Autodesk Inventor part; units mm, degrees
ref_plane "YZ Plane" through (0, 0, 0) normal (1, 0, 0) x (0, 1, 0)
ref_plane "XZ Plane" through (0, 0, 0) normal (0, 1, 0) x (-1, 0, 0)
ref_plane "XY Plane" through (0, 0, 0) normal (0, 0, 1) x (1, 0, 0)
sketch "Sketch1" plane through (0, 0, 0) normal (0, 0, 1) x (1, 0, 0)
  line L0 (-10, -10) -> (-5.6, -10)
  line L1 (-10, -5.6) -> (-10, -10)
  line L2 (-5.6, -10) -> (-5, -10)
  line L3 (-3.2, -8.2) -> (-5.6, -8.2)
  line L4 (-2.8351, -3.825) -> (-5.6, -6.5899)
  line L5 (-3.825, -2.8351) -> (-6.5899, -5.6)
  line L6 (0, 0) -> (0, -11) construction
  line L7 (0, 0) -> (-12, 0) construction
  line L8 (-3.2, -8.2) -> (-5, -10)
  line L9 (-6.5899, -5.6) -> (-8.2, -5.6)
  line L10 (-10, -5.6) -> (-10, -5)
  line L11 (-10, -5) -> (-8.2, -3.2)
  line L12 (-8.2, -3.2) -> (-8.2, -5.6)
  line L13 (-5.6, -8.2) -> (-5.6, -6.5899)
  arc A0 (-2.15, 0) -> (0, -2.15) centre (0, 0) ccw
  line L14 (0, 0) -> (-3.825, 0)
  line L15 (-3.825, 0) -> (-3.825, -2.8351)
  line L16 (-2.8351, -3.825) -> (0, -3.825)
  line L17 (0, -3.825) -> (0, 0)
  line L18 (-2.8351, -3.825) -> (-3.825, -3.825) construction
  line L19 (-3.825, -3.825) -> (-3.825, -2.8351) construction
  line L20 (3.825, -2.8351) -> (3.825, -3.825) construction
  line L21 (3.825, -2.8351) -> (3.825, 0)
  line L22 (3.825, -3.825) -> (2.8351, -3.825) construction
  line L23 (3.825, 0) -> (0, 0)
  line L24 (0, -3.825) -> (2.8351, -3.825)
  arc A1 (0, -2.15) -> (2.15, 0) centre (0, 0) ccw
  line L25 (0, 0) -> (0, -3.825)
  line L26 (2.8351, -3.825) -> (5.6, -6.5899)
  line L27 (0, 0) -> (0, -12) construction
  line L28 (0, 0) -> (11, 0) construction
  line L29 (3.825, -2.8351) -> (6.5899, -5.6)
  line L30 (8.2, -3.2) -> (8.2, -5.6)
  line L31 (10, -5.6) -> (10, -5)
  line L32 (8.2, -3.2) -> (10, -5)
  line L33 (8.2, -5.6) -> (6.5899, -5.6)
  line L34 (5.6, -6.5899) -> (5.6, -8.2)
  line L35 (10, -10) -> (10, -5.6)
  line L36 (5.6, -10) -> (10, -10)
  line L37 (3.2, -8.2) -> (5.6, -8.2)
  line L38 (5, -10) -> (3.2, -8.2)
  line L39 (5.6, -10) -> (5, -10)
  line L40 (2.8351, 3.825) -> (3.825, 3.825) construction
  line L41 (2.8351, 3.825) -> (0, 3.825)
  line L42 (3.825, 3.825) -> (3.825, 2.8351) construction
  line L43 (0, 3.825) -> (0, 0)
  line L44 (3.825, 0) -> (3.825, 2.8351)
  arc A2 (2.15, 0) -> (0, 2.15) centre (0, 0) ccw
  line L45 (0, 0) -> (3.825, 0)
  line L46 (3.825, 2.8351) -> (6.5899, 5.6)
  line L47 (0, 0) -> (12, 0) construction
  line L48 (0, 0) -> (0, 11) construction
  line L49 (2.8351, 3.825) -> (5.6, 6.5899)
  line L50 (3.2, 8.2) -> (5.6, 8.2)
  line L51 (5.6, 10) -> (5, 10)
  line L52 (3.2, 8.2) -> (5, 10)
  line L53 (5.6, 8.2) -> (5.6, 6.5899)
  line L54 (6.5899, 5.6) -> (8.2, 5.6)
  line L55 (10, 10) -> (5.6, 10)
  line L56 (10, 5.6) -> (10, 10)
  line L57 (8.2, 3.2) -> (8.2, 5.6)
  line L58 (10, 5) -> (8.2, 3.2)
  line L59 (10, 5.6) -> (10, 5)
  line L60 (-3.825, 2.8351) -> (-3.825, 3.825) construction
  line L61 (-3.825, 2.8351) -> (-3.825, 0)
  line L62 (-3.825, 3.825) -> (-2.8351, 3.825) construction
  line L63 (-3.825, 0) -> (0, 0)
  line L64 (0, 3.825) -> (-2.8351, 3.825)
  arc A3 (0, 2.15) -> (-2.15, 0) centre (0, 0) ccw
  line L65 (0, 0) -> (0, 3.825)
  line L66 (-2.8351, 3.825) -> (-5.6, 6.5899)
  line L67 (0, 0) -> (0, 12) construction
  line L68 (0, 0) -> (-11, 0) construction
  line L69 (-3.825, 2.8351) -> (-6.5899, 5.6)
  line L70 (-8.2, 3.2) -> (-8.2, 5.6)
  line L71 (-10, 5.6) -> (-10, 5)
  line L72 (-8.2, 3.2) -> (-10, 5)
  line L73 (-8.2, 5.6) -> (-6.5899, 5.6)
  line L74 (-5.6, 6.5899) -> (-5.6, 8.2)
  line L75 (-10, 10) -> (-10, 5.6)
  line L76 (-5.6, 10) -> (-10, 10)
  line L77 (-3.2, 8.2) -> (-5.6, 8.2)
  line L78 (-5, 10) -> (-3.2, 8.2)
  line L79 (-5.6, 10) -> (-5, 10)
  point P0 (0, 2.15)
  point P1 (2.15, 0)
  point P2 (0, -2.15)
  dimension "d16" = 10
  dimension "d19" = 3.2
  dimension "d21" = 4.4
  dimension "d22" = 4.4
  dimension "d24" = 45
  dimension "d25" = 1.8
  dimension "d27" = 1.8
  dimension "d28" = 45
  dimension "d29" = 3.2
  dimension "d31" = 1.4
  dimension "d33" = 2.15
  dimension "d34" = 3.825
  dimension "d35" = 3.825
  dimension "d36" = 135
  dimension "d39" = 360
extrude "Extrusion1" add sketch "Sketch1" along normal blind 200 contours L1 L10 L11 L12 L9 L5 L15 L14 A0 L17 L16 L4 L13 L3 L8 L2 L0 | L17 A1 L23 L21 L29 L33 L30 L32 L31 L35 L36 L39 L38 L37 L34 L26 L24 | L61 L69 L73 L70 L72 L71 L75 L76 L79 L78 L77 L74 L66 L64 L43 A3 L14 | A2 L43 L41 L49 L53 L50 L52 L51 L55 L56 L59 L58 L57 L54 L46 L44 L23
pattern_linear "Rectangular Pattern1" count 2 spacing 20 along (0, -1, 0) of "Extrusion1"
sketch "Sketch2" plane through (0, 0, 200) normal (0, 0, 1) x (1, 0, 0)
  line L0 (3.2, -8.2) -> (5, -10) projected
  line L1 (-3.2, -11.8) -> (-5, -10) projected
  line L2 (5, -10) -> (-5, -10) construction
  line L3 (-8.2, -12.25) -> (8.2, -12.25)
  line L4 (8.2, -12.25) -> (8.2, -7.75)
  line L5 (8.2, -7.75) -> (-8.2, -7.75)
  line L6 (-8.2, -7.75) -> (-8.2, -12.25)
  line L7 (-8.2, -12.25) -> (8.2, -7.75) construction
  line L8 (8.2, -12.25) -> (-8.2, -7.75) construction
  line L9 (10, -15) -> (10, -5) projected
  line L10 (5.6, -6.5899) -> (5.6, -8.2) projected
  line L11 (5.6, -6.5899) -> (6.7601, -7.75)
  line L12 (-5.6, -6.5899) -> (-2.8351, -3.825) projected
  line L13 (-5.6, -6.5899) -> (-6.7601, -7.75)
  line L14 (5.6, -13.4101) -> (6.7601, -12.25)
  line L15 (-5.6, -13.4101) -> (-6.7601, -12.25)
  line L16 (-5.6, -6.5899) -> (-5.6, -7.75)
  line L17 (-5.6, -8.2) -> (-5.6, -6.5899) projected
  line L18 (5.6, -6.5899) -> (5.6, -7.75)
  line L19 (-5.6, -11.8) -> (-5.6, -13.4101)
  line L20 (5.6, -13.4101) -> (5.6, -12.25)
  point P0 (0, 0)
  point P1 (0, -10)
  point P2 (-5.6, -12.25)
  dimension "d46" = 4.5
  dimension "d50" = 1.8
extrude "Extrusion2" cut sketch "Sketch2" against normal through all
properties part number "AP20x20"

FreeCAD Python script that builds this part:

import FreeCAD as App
import Part
import Sketcher
from FreeCAD import Vector

doc = App.newDocument("Part")
body = doc.addObject("PartDesign::Body", "Body")

sketch1 = body.newObject("Sketcher::SketchObject", "Sketch")
sketch1.AttachmentSupport = (doc.getObject("XY_Plane"), [""])
sketch1.MapMode = "FlatFace"
sketch1.addGeometry([
    Part.LineSegment(Vector(-10, -10, 0), Vector(-5, -10, 0)),
    Part.LineSegment(Vector(-5, -10, 0), Vector(-3.2, -8.2, 0)),
    Part.LineSegment(Vector(-3.2, -8.2, 0), Vector(-5.6, -8.2, 0)),
    Part.LineSegment(Vector(-5.6, -8.2, 0), Vector(-5.6, -6.6, 0)),
    Part.LineSegment(Vector(-5.6, -6.6, 0), Vector(-2.8, -3.8, 0)),
    Part.LineSegment(Vector(-2.8, -3.8, 0), Vector(2.8, -3.8, 0)),
    Part.LineSegment(Vector(2.8, -3.8, 0), Vector(5.6, -6.6, 0)),
    Part.LineSegment(Vector(5.6, -6.6, 0), Vector(5.6, -8.2, 0)),
    Part.LineSegment(Vector(5.6, -8.2, 0), Vector(3.2, -8.2, 0)),
    Part.LineSegment(Vector(3.2, -8.2, 0), Vector(5, -10, 0)),
    Part.LineSegment(Vector(5, -10, 0), Vector(10, -10, 0)),
    Part.LineSegment(Vector(10, -10, 0), Vector(10, -5, 0)),
    Part.LineSegment(Vector(10, -5, 0), Vector(8.2, -3.2, 0)),
    Part.LineSegment(Vector(8.2, -3.2, 0), Vector(8.2, -5.6, 0)),
    Part.LineSegment(Vector(8.2, -5.6, 0), Vector(6.6, -5.6, 0)),
    Part.LineSegment(Vector(6.6, -5.6, 0), Vector(3.8, -2.8, 0)),
    Part.LineSegment(Vector(3.8, -2.8, 0), Vector(3.8, 2.8, 0)),
    Part.LineSegment(Vector(3.8, 2.8, 0), Vector(6.6, 5.6, 0)),
    Part.LineSegment(Vector(6.6, 5.6, 0), Vector(8.2, 5.6, 0)),
    Part.LineSegment(Vector(8.2, 5.6, 0), Vector(8.2, 3.2, 0)),
    Part.LineSegment(Vector(8.2, 3.2, 0), Vector(10, 5, 0)),
    Part.LineSegment(Vector(10, 5, 0), Vector(10, 10, 0)),
    Part.LineSegment(Vector(10, 10, 0), Vector(5, 10, 0)),
    Part.LineSegment(Vector(5, 10, 0), Vector(3.2, 8.2, 0)),
    Part.LineSegment(Vector(3.2, 8.2, 0), Vector(5.6, 8.2, 0)),
    Part.LineSegment(Vector(5.6, 8.2, 0), Vector(5.6, 6.6, 0)),
    Part.LineSegment(Vector(5.6, 6.6, 0), Vector(2.8, 3.8, 0)),
    Part.LineSegment(Vector(2.8, 3.8, 0), Vector(-2.8, 3.8, 0)),
    Part.LineSegment(Vector(-2.8, 3.8, 0), Vector(-5.6, 6.6, 0)),
    Part.LineSegment(Vector(-5.6, 6.6, 0), Vector(-5.6, 8.2, 0)),
    Part.LineSegment(Vector(-5.6, 8.2, 0), Vector(-3.2, 8.2, 0)),
    Part.LineSegment(Vector(-3.2, 8.2, 0), Vector(-5, 10, 0)),
    Part.LineSegment(Vector(-5, 10, 0), Vector(-10, 10, 0)),
    Part.LineSegment(Vector(-10, 10, 0), Vector(-10, 5, 0)),
    Part.LineSegment(Vector(-10, 5, 0), Vector(-8.2, 3.2, 0)),
    Part.LineSegment(Vector(-8.2, 3.2, 0), Vector(-8.2, 5.6, 0)),
    Part.LineSegment(Vector(-8.2, 5.6, 0), Vector(-6.6, 5.6, 0)),
    Part.LineSegment(Vector(-6.6, 5.6, 0), Vector(-3.8, 2.8, 0)),
    Part.LineSegment(Vector(-3.8, 2.8, 0), Vector(-3.8, -2.8, 0)),
    Part.LineSegment(Vector(-3.8, -2.8, 0), Vector(-6.6, -5.6, 0)),
    Part.LineSegment(Vector(-6.6, -5.6, 0), Vector(-8.2, -5.6, 0)),
    Part.LineSegment(Vector(-8.2, -5.6, 0), Vector(-8.2, -3.2, 0)),
    Part.LineSegment(Vector(-8.2, -3.2, 0), Vector(-10, -5, 0)),
    Part.LineSegment(Vector(-10, -5, 0), Vector(-10, -10, 0)),
    Part.Circle(Vector(0, 0, 0), Vector(0, 0, 1), 2.1),
], False)
sketch1.addConstraint([
    Sketcher.Constraint("Coincident", 0, 2, 1, 1),
    Sketcher.Constraint("Coincident", 1, 2, 2, 1),
    Sketcher.Constraint("Coincident", 2, 2, 3, 1),
    Sketcher.Constraint("Coincident", 3, 2, 4, 1),
    Sketcher.Constraint("Coincident", 4, 2, 5, 1),
    Sketcher.Constraint("Coincident", 5, 2, 6, 1),
    Sketcher.Constraint("Coincident", 6, 2, 7, 1),
    Sketcher.Constraint("Coincident", 7, 2, 8, 1),
    Sketcher.Constraint("Coincident", 8, 2, 9, 1),
    Sketcher.Constraint("Coincident", 9, 2, 10, 1),
    Sketcher.Constraint("Coincident", 10, 2, 11, 1),
    Sketcher.Constraint("Coincident", 11, 2, 12, 1),
    Sketcher.Constraint("Coincident", 12, 2, 13, 1),
    Sketcher.Constraint("Coincident", 13, 2, 14, 1),
    Sketcher.Constraint("Coincident", 14, 2, 15, 1),
    Sketcher.Constraint("Coincident", 15, 2, 16, 1),
    Sketcher.Constraint("Coincident", 16, 2, 17, 1),
    Sketcher.Constraint("Coincident", 17, 2, 18, 1),
    Sketcher.Constraint("Coincident", 18, 2, 19, 1),
    Sketcher.Constraint("Coincident", 19, 2, 20, 1),
    Sketcher.Constraint("Coincident", 20, 2, 21, 1),
    Sketcher.Constraint("Coincident", 21, 2, 22, 1),
    Sketcher.Constraint("Coincident", 22, 2, 23, 1),
    Sketcher.Constraint("Coincident", 23, 2, 24, 1),
    Sketcher.Constraint("Coincident", 24, 2, 25, 1),
    Sketcher.Constraint("Coincident", 25, 2, 26, 1),
    Sketcher.Constraint("Coincident", 26, 2, 27, 1),
    Sketcher.Constraint("Coincident", 27, 2, 28, 1),
    Sketcher.Constraint("Coincident", 28, 2, 29, 1),
    Sketcher.Constraint("Coincident", 29, 2, 30, 1),
    Sketcher.Constraint("Coincident", 30, 2, 31, 1),
    Sketcher.Constraint("Coincident", 31, 2, 32, 1),
    Sketcher.Constraint("Coincident", 32, 2, 33, 1),
    Sketcher.Constraint("Coincident", 33, 2, 34, 1),
    Sketcher.Constraint("Coincident", 34, 2, 35, 1),
    Sketcher.Constraint("Coincident", 35, 2, 36, 1),
    Sketcher.Constraint("Coincident", 36, 2, 37, 1),
    Sketcher.Constraint("Coincident", 37, 2, 38, 1),
    Sketcher.Constraint("Coincident", 38, 2, 39, 1),
    Sketcher.Constraint("Coincident", 39, 2, 40, 1),
    Sketcher.Constraint("Coincident", 40, 2, 41, 1),
    Sketcher.Constraint("Coincident", 41, 2, 42, 1),
    Sketcher.Constraint("Coincident", 42, 2, 43, 1),
    Sketcher.Constraint("Coincident", 43, 2, 0, 1),
    Sketcher.Constraint("Horizontal", 0),
    Sketcher.Constraint("Horizontal", 2),
    Sketcher.Constraint("Vertical", 3),
    Sketcher.Constraint("Horizontal", 5),
    Sketcher.Constraint("Vertical", 7),
    Sketcher.Constraint("Horizontal", 8),
    Sketcher.Constraint("Horizontal", 10),
    Sketcher.Constraint("Vertical", 11),
    Sketcher.Constraint("Vertical", 13),
    Sketcher.Constraint("Horizontal", 14),
    Sketcher.Constraint("Vertical", 16),
    Sketcher.Constraint("Horizontal", 18),
    Sketcher.Constraint("Vertical", 19),
    Sketcher.Constraint("Vertical", 21),
    Sketcher.Constraint("Horizontal", 22),
    Sketcher.Constraint("Horizontal", 24),
    Sketcher.Constraint("Vertical", 25),
    Sketcher.Constraint("Horizontal", 27),
    Sketcher.Constraint("Vertical", 29),
    Sketcher.Constraint("Horizontal", 30),
    Sketcher.Constraint("Horizontal", 32),
    Sketcher.Constraint("Vertical", 33),
    Sketcher.Constraint("Vertical", 35),
    Sketcher.Constraint("Horizontal", 36),
    Sketcher.Constraint("Vertical", 38),
    Sketcher.Constraint("Horizontal", 40),
    Sketcher.Constraint("Vertical", 41),
    Sketcher.Constraint("Vertical", 43),
    Sketcher.Constraint("Coincident", 44, 3, -1, 1),
    Sketcher.Constraint("Symmetric", 0, 2, 22, 2, -1, 1),
    Sketcher.Constraint("Symmetric", 1, 2, 23, 2, -1, 1),
    Sketcher.Constraint("Symmetric", 3, 2, 25, 2, -1, 1),
    Sketcher.Constraint("Symmetric", 4, 2, 26, 2, -1, 1),
    Sketcher.Constraint("Symmetric", 6, 2, 28, 2, -1, 1),
    Sketcher.Constraint("Symmetric", 8, 2, 30, 2, -1, 1),
    Sketcher.Constraint("Symmetric", 9, 2, 31, 2, -1, 1),
    Sketcher.Constraint("Symmetric", 11, 2, 33, 2, -1, 1),
    Sketcher.Constraint("Symmetric", 12, 2, 34, 2, -1, 1),
    Sketcher.Constraint("Symmetric", 14, 2, 36, 2, -1, 1),
    Sketcher.Constraint("Symmetric", 15, 2, 37, 2, -1, 1),
    Sketcher.Constraint("Symmetric", 17, 2, 39, 2, -1, 1),
    Sketcher.Constraint("Symmetric", 19, 2, 41, 2, -1, 1),
    Sketcher.Constraint("Symmetric", 20, 2, 42, 2, -1, 1),
    Sketcher.Constraint("Symmetric", 3, 2, 6, 2, -2),
    Sketcher.Constraint("Symmetric", 1, 2, 8, 2, -2),
    Sketcher.Constraint("Symmetric", 0, 2, 9, 2, -2),
    Sketcher.Constraint("Symmetric", 20, 2, 33, 2, -2),
    Sketcher.Constraint("Symmetric", 19, 2, 34, 2, -2),
    Sketcher.Constraint("Symmetric", 17, 2, 36, 2, -2),
    Sketcher.Constraint("Parallel", 1, 4),
    Sketcher.Constraint("Perpendicular", 4, 6),
    Sketcher.Constraint("Parallel", 6, 9),
    Sketcher.Constraint("Parallel", 9, 12),
    Sketcher.Constraint("Parallel", 12, 15),
    Sketcher.Constraint("Perpendicular", 15, 17),
    Sketcher.Constraint("Perpendicular", 26, 28),
    Sketcher.Constraint("Perpendicular", 37, 39),
    Sketcher.Constraint("Equal", 40, 3),
    Sketcher.Constraint("Equal", 32, 11),
    Sketcher.Constraint("Equal", 30, 13),
    Sketcher.Constraint("Equal", 27, 16),
    Sketcher.Constraint("Equal", 9, 12),
    Sketcher.Constraint("Equal", 6, 15),
    Sketcher.Constraint("Diameter", 44, 4.3),
    Sketcher.Constraint("DistanceY", 0, 2, -1, 1, 10.0),
    Sketcher.Constraint("DistanceX", 1, 2, -1, 1, 3.2),
    Sketcher.Constraint("DistanceX", 0, 2, 1, 2, 1.8),
    Sketcher.Constraint("DistanceX", 7, 2, 10, 2, 4.4),
    Sketcher.Constraint("DistanceY", 4, 2, -1, 1, 3.825),
    Sketcher.Constraint("DistanceX", 14, 2, 14, 1, 1.61),
])
pad1 = body.newObject("PartDesign::Pad", "Pad")
pad1.Profile = sketch1
pad1.Length = 200
doc.recompute()

linearpattern = body.newObject("PartDesign::LinearPattern", "LinearPattern")
linearpattern.Originals = [pad1]
linearpattern.Direction = (doc.getObject("Y_Axis"), [""])
linearpattern.Mode = "offset"
linearpattern.Offset = 20
linearpattern.Occurrences = 2
linearpattern.Reversed = True
body.Tip = linearpattern

sketch2 = body.newObject("Sketcher::SketchObject", "Sketch001")
sketch2.AttachmentSupport = (doc.getObject("XY_Plane"), [""])
sketch2.MapMode = "FlatFace"
sketch2.AttachmentOffset = App.Placement(Vector(0, 0, 200), App.Rotation())
sketch2.addGeometry([
    Part.LineSegment(Vector(-8.2, -7.8, 0), Vector(-8.2, -12.2, 0)),
    Part.LineSegment(Vector(-8.2, -12.2, 0), Vector(-6.8, -12.2, 0)),
    Part.LineSegment(Vector(-6.8, -12.2, 0), Vector(-5.6, -13.4, 0)),
    Part.LineSegment(Vector(-5.6, -13.4, 0), Vector(-5.6, -12.2, 0)),
    Part.LineSegment(Vector(-5.6, -12.2, 0), Vector(5.6, -12.2, 0)),
    Part.LineSegment(Vector(5.6, -12.2, 0), Vector(5.6, -13.4, 0)),
    Part.LineSegment(Vector(5.6, -13.4, 0), Vector(6.8, -12.2, 0)),
    Part.LineSegment(Vector(6.8, -12.2, 0), Vector(8.2, -12.2, 0)),
    Part.LineSegment(Vector(8.2, -12.2, 0), Vector(8.2, -7.8, 0)),
    Part.LineSegment(Vector(8.2, -7.8, 0), Vector(6.8, -7.8, 0)),
    Part.LineSegment(Vector(6.8, -7.8, 0), Vector(5.6, -6.6, 0)),
    Part.LineSegment(Vector(5.6, -6.6, 0), Vector(5.6, -7.8, 0)),
    Part.LineSegment(Vector(5.6, -7.8, 0), Vector(-5.6, -7.8, 0)),
    Part.LineSegment(Vector(-5.6, -7.8, 0), Vector(-5.6, -6.6, 0)),
    Part.LineSegment(Vector(-5.6, -6.6, 0), Vector(-6.8, -7.8, 0)),
    Part.LineSegment(Vector(-6.8, -7.8, 0), Vector(-8.2, -7.8, 0)),
], False)
sketch2.addConstraint([
    Sketcher.Constraint("Coincident", 0, 2, 1, 1),
    Sketcher.Constraint("Coincident", 1, 2, 2, 1),
    Sketcher.Constraint("Coincident", 2, 2, 3, 1),
    Sketcher.Constraint("Coincident", 3, 2, 4, 1),
    Sketcher.Constraint("Coincident", 4, 2, 5, 1),
    Sketcher.Constraint("Coincident", 5, 2, 6, 1),
    Sketcher.Constraint("Coincident", 6, 2, 7, 1),
    Sketcher.Constraint("Coincident", 7, 2, 8, 1),
    Sketcher.Constraint("Coincident", 8, 2, 9, 1),
    Sketcher.Constraint("Coincident", 9, 2, 10, 1),
    Sketcher.Constraint("Coincident", 10, 2, 11, 1),
    Sketcher.Constraint("Coincident", 11, 2, 12, 1),
    Sketcher.Constraint("Coincident", 12, 2, 13, 1),
    Sketcher.Constraint("Coincident", 13, 2, 14, 1),
    Sketcher.Constraint("Coincident", 14, 2, 15, 1),
    Sketcher.Constraint("Coincident", 15, 2, 0, 1),
    Sketcher.Constraint("Vertical", 0),
    Sketcher.Constraint("Horizontal", 1),
    Sketcher.Constraint("Vertical", 3),
    Sketcher.Constraint("Horizontal", 4),
    Sketcher.Constraint("Vertical", 5),
    Sketcher.Constraint("Horizontal", 7),
    Sketcher.Constraint("Vertical", 8),
    Sketcher.Constraint("Horizontal", 9),
    Sketcher.Constraint("Vertical", 11),
    Sketcher.Constraint("Horizontal", 12),
    Sketcher.Constraint("Vertical", 13),
    Sketcher.Constraint("Horizontal", 15),
    Sketcher.Constraint("Symmetric", 2, 2, 5, 2, -2),
    Sketcher.Constraint("Symmetric", 1, 2, 6, 2, -2),
    Sketcher.Constraint("Symmetric", 10, 2, 13, 2, -2),
    Sketcher.Constraint("Symmetric", 9, 2, 14, 2, -2),
    Sketcher.Constraint("Perpendicular", 2, 6),
    Sketcher.Constraint("Perpendicular", 6, 10),
    Sketcher.Constraint("Horizontal", 1, 2, 3, 2),
    Sketcher.Constraint("Horizontal", 9, 2, 11, 2),
    Sketcher.Constraint("Vertical", 6, 2, 9, 2),
    Sketcher.Constraint("Vertical", 5, 2, 10, 2),
    Sketcher.Constraint("Equal", 1, 7),
    Sketcher.Constraint("DistanceY", 0, 2, 0, 1, 4.5),
    Sketcher.Constraint("DistanceX", 4, 1, 4, 2, 11.2),
    Sketcher.Constraint("DistanceX", 1, 1, 1, 2, 1.44),
    Sketcher.Constraint("DistanceY", 3, 1, 3, 2, 1.16),
    Sketcher.Constraint("DistanceY", 0, 2, -1, 1, 12.25),
])
pocket1 = body.newObject("PartDesign::Pocket", "Pocket")
pocket1.Profile = sketch2
pocket1.Type = "ThroughAll"

doc.recompute()
